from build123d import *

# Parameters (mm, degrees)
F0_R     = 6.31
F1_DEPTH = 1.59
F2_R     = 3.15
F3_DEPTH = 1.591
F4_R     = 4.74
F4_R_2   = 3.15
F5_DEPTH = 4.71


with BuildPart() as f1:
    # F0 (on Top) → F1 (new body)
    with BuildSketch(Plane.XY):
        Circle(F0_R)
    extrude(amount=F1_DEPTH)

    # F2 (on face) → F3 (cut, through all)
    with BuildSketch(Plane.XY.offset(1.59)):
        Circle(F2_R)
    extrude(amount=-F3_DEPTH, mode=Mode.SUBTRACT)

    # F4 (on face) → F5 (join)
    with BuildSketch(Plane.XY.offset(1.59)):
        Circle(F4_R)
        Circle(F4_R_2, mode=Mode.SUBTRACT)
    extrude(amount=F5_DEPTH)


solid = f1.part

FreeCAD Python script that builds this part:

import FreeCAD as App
import Part
import Sketcher
from FreeCAD import Vector

doc = App.newDocument("Part")
body = doc.addObject("PartDesign::Body", "Body")

# Sketch on XY plane
sketch1 = doc.addObject("Sketcher::SketchObject", "Sketch")
body.addObject(sketch1)
sketch1.AttachmentSupport = (doc.XY_Plane, [""])
sketch1.MapMode = "FlatFace"
sketch1.addGeometry(Part.Circle(Vector(0, 0, 0), Vector(0, 0, 1), 6.31), False)
sketch1.addConstraint([
    Sketcher.Constraint("Coincident", 0, 3, -1, 1),
    Sketcher.Constraint("Diameter", 0, 12.62),
])
pad1 = doc.addObject("PartDesign::Pad", "Pad")
body.addObject(pad1)
pad1.Profile = sketch1
pad1.Length = 1.59

# Sketch on XY plane
sketch2 = doc.addObject("Sketcher::SketchObject", "Sketch001")
body.addObject(sketch2)
sketch2.AttachmentSupport = (doc.XY_Plane, [""])
sketch2.MapMode = "FlatFace"
sketch2.AttachmentOffset = App.Placement(Vector(0, 0, 1.59), App.Rotation())
sketch2.addGeometry(Part.Circle(Vector(0, 0, 0), Vector(0, 0, 1), 3.15), False)
sketch2.addConstraint([
    Sketcher.Constraint("Coincident", 0, 3, -1, 1),
    Sketcher.Constraint("Diameter", 0, 6.3),
])
pocket1 = doc.addObject("PartDesign::Pocket", "Pocket")
body.addObject(pocket1)
pocket1.Profile = sketch2
pocket1.Type = "ThroughAll"

# Sketch on XY plane
sketch3 = doc.addObject("Sketcher::SketchObject", "Sketch002")
body.addObject(sketch3)
sketch3.AttachmentSupport = (doc.XY_Plane, [""])
sketch3.MapMode = "FlatFace"
sketch3.AttachmentOffset = App.Placement(Vector(0, 0, 1.59), App.Rotation())
sketch3.addGeometry([
    Part.Circle(Vector(0, 0, 0), Vector(0, 0, 1), 4.74),
    Part.Circle(Vector(0, 0, 0), Vector(0, 0, 1), 3.15),
], False)
sketch3.addConstraint([
    Sketcher.Constraint("Coincident", 0, 3, -1, 1),
    Sketcher.Constraint("Coincident", 1, 3, -1, 1),
    Sketcher.Constraint("Diameter", 1, 6.3),
    Sketcher.Constraint("Diameter", 0, 9.48),
])
pad2 = doc.addObject("PartDesign::Pad", "Pad001")
body.addObject(pad2)
pad2.Profile = sketch3
pad2.Length = 4.71

doc.recompute()
